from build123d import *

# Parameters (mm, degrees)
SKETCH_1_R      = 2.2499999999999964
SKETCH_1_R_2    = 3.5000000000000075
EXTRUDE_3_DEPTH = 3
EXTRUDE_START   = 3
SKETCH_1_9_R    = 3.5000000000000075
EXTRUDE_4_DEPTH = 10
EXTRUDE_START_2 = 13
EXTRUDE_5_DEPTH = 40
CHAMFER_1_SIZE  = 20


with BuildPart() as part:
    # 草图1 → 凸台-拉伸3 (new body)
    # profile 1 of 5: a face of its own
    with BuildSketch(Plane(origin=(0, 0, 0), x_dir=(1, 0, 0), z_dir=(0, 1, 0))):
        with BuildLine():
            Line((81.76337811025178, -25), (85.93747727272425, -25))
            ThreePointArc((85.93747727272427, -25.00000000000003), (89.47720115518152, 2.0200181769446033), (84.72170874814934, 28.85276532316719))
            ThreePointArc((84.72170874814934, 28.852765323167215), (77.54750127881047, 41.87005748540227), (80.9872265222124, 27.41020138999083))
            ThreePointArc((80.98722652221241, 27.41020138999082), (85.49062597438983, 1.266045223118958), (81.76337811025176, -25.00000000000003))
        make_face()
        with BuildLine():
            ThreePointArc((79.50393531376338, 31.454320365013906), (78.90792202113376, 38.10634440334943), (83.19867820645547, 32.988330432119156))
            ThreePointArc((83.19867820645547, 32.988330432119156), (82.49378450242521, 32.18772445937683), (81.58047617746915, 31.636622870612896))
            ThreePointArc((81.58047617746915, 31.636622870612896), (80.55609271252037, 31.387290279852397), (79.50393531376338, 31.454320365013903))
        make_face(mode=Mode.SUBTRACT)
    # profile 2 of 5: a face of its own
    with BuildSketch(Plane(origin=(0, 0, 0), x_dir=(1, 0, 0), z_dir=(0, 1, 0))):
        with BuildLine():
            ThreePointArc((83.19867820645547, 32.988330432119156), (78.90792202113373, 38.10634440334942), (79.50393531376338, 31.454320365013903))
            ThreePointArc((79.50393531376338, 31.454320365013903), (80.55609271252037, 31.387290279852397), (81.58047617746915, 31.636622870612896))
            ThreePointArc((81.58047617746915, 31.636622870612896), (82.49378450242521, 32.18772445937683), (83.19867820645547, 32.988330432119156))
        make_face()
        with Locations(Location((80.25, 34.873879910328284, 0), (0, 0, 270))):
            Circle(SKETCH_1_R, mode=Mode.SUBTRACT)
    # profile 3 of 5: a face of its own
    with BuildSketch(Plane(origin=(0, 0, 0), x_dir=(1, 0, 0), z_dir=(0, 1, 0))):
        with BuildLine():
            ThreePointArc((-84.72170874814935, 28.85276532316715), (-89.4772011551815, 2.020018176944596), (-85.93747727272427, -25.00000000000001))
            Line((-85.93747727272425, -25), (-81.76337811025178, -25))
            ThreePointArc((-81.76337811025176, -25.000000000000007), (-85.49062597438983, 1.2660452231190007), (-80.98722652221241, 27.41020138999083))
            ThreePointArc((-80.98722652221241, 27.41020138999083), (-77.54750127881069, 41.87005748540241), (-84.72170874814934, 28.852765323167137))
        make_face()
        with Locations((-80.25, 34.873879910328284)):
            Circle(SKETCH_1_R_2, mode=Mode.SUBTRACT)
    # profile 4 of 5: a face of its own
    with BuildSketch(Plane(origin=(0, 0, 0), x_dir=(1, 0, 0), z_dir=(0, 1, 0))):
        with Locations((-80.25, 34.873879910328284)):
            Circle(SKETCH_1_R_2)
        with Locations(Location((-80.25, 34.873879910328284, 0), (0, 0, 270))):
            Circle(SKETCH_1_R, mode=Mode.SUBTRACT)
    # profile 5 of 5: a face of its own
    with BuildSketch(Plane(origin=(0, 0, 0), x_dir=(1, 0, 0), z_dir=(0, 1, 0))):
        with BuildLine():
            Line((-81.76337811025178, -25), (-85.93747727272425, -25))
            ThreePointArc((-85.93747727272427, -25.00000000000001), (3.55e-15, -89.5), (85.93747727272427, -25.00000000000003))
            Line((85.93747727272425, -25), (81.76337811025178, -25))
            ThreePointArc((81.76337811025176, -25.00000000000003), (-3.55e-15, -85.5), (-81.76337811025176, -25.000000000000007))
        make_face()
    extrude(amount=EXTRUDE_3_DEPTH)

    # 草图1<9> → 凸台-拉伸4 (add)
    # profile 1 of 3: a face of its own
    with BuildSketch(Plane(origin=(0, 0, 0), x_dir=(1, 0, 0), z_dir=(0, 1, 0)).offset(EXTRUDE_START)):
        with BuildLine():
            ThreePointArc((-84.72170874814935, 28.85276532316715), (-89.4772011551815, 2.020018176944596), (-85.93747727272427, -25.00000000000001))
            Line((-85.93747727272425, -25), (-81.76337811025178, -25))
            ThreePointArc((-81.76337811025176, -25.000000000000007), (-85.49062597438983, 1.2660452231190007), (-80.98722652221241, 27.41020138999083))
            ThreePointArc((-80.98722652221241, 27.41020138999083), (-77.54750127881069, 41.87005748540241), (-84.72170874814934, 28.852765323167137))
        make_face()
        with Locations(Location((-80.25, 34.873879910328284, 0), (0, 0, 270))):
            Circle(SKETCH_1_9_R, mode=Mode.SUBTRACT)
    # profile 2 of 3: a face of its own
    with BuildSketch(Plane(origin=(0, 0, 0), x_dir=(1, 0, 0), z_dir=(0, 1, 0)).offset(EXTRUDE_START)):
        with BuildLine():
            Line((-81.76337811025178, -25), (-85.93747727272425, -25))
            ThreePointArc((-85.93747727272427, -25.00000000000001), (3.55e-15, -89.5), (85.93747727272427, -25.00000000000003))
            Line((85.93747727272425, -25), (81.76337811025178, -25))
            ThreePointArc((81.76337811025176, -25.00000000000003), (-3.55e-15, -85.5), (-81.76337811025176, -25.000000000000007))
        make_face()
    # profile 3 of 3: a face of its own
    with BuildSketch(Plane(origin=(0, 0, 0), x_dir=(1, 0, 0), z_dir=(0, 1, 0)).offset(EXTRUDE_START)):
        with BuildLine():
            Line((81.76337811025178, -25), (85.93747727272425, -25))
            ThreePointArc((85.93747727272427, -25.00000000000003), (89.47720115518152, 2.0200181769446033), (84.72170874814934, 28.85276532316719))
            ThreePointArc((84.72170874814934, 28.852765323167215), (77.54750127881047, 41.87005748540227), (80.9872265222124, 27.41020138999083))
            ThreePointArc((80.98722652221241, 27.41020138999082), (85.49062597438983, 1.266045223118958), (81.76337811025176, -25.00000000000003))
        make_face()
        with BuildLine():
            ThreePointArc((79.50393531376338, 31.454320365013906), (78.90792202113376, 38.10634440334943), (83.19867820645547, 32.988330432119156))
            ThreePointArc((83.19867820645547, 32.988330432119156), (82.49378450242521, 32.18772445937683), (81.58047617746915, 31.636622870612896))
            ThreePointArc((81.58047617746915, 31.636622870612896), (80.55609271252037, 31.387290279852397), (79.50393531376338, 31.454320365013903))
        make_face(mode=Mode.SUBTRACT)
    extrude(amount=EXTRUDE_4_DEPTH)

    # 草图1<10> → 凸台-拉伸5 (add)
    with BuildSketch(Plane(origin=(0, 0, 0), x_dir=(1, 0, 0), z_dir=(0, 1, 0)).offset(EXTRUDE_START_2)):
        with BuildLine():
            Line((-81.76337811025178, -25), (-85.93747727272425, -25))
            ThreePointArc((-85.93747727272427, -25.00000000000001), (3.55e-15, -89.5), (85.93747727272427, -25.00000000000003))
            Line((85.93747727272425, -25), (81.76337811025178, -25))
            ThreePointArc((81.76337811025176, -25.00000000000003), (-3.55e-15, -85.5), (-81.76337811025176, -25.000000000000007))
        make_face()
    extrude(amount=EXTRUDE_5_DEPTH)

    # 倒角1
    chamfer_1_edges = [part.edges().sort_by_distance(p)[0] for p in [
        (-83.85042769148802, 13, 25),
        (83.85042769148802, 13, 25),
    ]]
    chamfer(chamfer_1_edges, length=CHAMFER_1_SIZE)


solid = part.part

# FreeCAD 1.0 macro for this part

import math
import FreeCAD as App
import Part
import Sketcher
Q = App.Units.Quantity


def edges_at(feature, points):
    """Names of the edges that pass closest to the given points."""
    edges = feature.Shape.Edges
    near = lambda p: min(range(len(edges)), key=lambda i: edges[i].distToShape(Part.Vertex(*p))[0])
    return sorted({f"Edge{near(p) + 1}" for p in points})

doc = App.newDocument("Part")
params = doc.addObject("Spreadsheet::Sheet", "Params")
for row, (alias, value) in enumerate([
    ("sketch1_diameter", "4.5 mm"),
    ("sketch1_radius", "85.5 mm"),
    ("sketch1_radius2", "7.5 mm"),
    ("sketch1_radius3", "89.5 mm"),
    ("pad1_length", "3 mm"),
    ("sketch2_diameter", "7 mm"),
    ("sketch2_radius", "89.5 mm"),
    ("sketch2_radius2", "7.5 mm"),
    ("sketch2_radius3", "85.5 mm"),
    ("pad2_length", "10 mm"),
    ("sketch3_radius", "89.5 mm"),
    ("sketch3_radius2", "85.5 mm"),
    ("pad3_length", "40 mm"),
    ("chamfer_size", "20 mm"),
], start=1):
    params.set(f"A{row}", alias)
    params.set(f"B{row}", "=" + value)
    params.setAlias(f"B{row}", alias)

body = doc.addObject("PartDesign::Body", "Body")

# Sketch on XZ plane
sketch1 = body.newObject("Sketcher::SketchObject", "Sketch")
sketch1.AttachmentSupport = (doc.getObject("XZ_Plane"), [""])
sketch1.MapMode = "FlatFace"
sketch1.addGeometry(Part.ArcOfCircle(Part.Circle(App.Vector(0, 0, 0), App.Vector(0, 0, 1), 85.5), math.radians(-19), math.radians(199)), False)
sketch1.addGeometry(Part.ArcOfCircle(Part.Circle(App.Vector(-80.2, -34.9, 0), App.Vector(0, 0, 1), 7.5), math.radians(127), math.radians(456)), False)
sketch1.addGeometry(Part.ArcOfCircle(Part.Circle(App.Vector(0, 0, 0), App.Vector(0, 0, 1), 89.5), math.radians(-19), math.radians(199)), False)
sketch1.addGeometry(Part.ArcOfCircle(Part.Circle(App.Vector(80.2, -34.9, 0), App.Vector(0, 0, 1), 7.5), math.radians(84), math.radians(413)), False)
sketch1.addGeometry(Part.Circle(App.Vector(80.2, -34.9, 0), App.Vector(0, 0, 1), 2.2), False)
sketch1.addGeometry(Part.Circle(App.Vector(-80.2, -34.9, 0), App.Vector(0, 0, 1), 2.2), False)
sketch1.addConstraint(Sketcher.Constraint("Coincident", 0, 2, 1, 2))
sketch1.addConstraint(Sketcher.Constraint("Coincident", 1, 1, 2, 2))
sketch1.addConstraint(Sketcher.Constraint("Coincident", 2, 1, 3, 2))
sketch1.addConstraint(Sketcher.Constraint("Coincident", 3, 1, 0, 1))
sketch1.addConstraint(Sketcher.Constraint("Coincident", 0, 3, -1, 1))
sketch1.addConstraint(Sketcher.Constraint("Coincident", 2, 3, -1, 1))
sketch1.addConstraint(Sketcher.Constraint("Coincident", 4, 3, 3, 3))
sketch1.addConstraint(Sketcher.Constraint("Coincident", 5, 3, 1, 3))
sketch1.addConstraint(Sketcher.Constraint("Equal", 1, 3))
sketch1.addConstraint(Sketcher.Constraint("Equal", 4, 5))
sketch1.addConstraint(Sketcher.Constraint("Symmetric", 1, 3, 3, 3, -2))
sketch1.addConstraint(Sketcher.Constraint("Diameter", 4, Q("4.5 mm")))
sketch1.addConstraint(Sketcher.Constraint("Radius", 0, Q("85.5 mm")))
sketch1.addConstraint(Sketcher.Constraint("Radius", 1, Q("7.5 mm")))
sketch1.addConstraint(Sketcher.Constraint("Radius", 2, Q("89.5 mm")))
sketch1.addConstraint(Sketcher.Constraint("DistanceX", 1, 3, 3, 3, Q("160.5 mm")))
sketch1.addConstraint(Sketcher.Constraint("DistanceY", 0, 2, -1, 1, Q("27.410201 mm")))
sketch1.setExpression("Constraints[11]", "Params.sketch1_diameter")
sketch1.setExpression("Constraints[12]", "Params.sketch1_radius")
sketch1.setExpression("Constraints[13]", "Params.sketch1_radius2")
sketch1.setExpression("Constraints[14]", "Params.sketch1_radius3")
pad1 = body.newObject("PartDesign::Pad", "Pad")
pad1.Profile = sketch1
pad1.setExpression("Length", "Params.pad1_length")
pad1.Reversed = True

# Sketch on XZ plane
sketch2 = body.newObject("Sketcher::SketchObject", "Sketch001")
sketch2.AttachmentSupport = (doc.getObject("XZ_Plane"), [""])
sketch2.MapMode = "FlatFace"
sketch2.AttachmentOffset = App.Placement(App.Vector(0, 0, -3), App.Rotation())
sketch2.addGeometry(Part.ArcOfCircle(Part.Circle(App.Vector(0, 0, 0), App.Vector(0, 0, 1), 89.5), math.radians(-19), math.radians(199)), False)
sketch2.addGeometry(Part.ArcOfCircle(Part.Circle(App.Vector(80.2, -34.9, 0), App.Vector(0, 0, 1), 7.5), math.radians(84), math.radians(413)), False)
sketch2.addGeometry(Part.ArcOfCircle(Part.Circle(App.Vector(0, 0, 0), App.Vector(0, 0, 1), 85.5), math.radians(-19), math.radians(199)), False)
sketch2.addGeometry(Part.ArcOfCircle(Part.Circle(App.Vector(-80.2, -34.9, 0), App.Vector(0, 0, 1), 7.5), math.radians(127), math.radians(456)), False)
sketch2.addGeometry(Part.Circle(App.Vector(-80.2, -34.9, 0), App.Vector(0, 0, 1), 3.5), False)
sketch2.addGeometry(Part.Circle(App.Vector(80.2, -34.9, 0), App.Vector(0, 0, 1), 3.5), False)
sketch2.addConstraint(Sketcher.Constraint("Coincident", 0, 1, 1, 2))
sketch2.addConstraint(Sketcher.Constraint("Coincident", 1, 1, 2, 1))
sketch2.addConstraint(Sketcher.Constraint("Coincident", 2, 2, 3, 2))
sketch2.addConstraint(Sketcher.Constraint("Coincident", 3, 1, 0, 2))
sketch2.addConstraint(Sketcher.Constraint("Coincident", 0, 3, -1, 1))
sketch2.addConstraint(Sketcher.Constraint("Coincident", 2, 3, -1, 1))
sketch2.addConstraint(Sketcher.Constraint("Coincident", 4, 3, 3, 3))
sketch2.addConstraint(Sketcher.Constraint("Coincident", 5, 3, 1, 3))
sketch2.addConstraint(Sketcher.Constraint("Equal", 1, 3))
sketch2.addConstraint(Sketcher.Constraint("Equal", 4, 5))
sketch2.addConstraint(Sketcher.Constraint("Symmetric", 1, 3, 3, 3, -2))
sketch2.addConstraint(Sketcher.Constraint("Diameter", 4, Q("7 mm")))
sketch2.addConstraint(Sketcher.Constraint("Radius", 0, Q("89.5 mm")))
sketch2.addConstraint(Sketcher.Constraint("Radius", 1, Q("7.5 mm")))
sketch2.addConstraint(Sketcher.Constraint("Radius", 2, Q("85.5 mm")))
sketch2.addConstraint(Sketcher.Constraint("DistanceX", 3, 3, 1, 3, Q("160.5 mm")))
sketch2.addConstraint(Sketcher.Constraint("DistanceY", 1, 1, -1, 1, Q("27.410201 mm")))
sketch2.setExpression("Constraints[11]", "Params.sketch2_diameter")
sketch2.setExpression("Constraints[12]", "Params.sketch2_radius")
sketch2.setExpression("Constraints[13]", "Params.sketch2_radius2")
sketch2.setExpression("Constraints[14]", "Params.sketch2_radius3")
pad2 = body.newObject("PartDesign::Pad", "Pad001")
pad2.Profile = sketch2
pad2.setExpression("Length", "Params.pad2_length")
pad2.Reversed = True

# Sketch on XZ plane
sketch3 = body.newObject("Sketcher::SketchObject", "Sketch002")
sketch3.AttachmentSupport = (doc.getObject("XZ_Plane"), [""])
sketch3.MapMode = "FlatFace"
sketch3.AttachmentOffset = App.Placement(App.Vector(0, 0, -13), App.Rotation())
sketch3.addGeometry(Part.LineSegment(App.Vector(-81.8, 25, 0), App.Vector(-85.9, 25, 0)), False)
sketch3.addGeometry(Part.ArcOfCircle(Part.Circle(App.Vector(0, 0, 0), App.Vector(0, 0, 1), 89.5), math.radians(16), math.radians(164)), False)
sketch3.addGeometry(Part.LineSegment(App.Vector(85.9, 25, 0), App.Vector(81.8, 25, 0)), False)
sketch3.addGeometry(Part.ArcOfCircle(Part.Circle(App.Vector(0, 0, 0), App.Vector(0, 0, 1), 85.5), math.radians(17), math.radians(163)), False)
sketch3.addConstraint(Sketcher.Constraint("Coincident", 0, 2, 1, 2))
sketch3.addConstraint(Sketcher.Constraint("Coincident", 1, 1, 2, 1))
sketch3.addConstraint(Sketcher.Constraint("Coincident", 2, 2, 3, 1))
sketch3.addConstraint(Sketcher.Constraint("Coincident", 3, 2, 0, 1))
sketch3.addConstraint(Sketcher.Constraint("Horizontal", 0))
sketch3.addConstraint(Sketcher.Constraint("Horizontal", 2))
sketch3.addConstraint(Sketcher.Constraint("Coincident", 1, 3, -1, 1))
sketch3.addConstraint(Sketcher.Constraint("Coincident", 3, 3, -1, 1))
sketch3.addConstraint(Sketcher.Constraint("Horizontal", 0, 2, 1, 1))
sketch3.addConstraint(Sketcher.Constraint("Radius", 1, Q("89.5 mm")))
sketch3.addConstraint(Sketcher.Constraint("Radius", 3, Q("85.5 mm")))
sketch3.addConstraint(Sketcher.Constraint("DistanceY", -1, 1, 0, 2, Q("25 mm")))
sketch3.setExpression("Constraints[9]", "Params.sketch3_radius")
sketch3.setExpression("Constraints[10]", "Params.sketch3_radius2")
pad3 = body.newObject("PartDesign::Pad", "Pad002")
pad3.Profile = sketch3
pad3.setExpression("Length", "Params.pad3_length")
pad3.Reversed = True
doc.recompute()

chamfer = body.newObject("PartDesign::Chamfer", "Chamfer")
chamfer.Base = (pad3, edges_at(pad3, [(-83.85, 13, 25), (83.85, 13, 25)]))
chamfer.setExpression("Size", "Params.chamfer_size")

doc.recompute()
